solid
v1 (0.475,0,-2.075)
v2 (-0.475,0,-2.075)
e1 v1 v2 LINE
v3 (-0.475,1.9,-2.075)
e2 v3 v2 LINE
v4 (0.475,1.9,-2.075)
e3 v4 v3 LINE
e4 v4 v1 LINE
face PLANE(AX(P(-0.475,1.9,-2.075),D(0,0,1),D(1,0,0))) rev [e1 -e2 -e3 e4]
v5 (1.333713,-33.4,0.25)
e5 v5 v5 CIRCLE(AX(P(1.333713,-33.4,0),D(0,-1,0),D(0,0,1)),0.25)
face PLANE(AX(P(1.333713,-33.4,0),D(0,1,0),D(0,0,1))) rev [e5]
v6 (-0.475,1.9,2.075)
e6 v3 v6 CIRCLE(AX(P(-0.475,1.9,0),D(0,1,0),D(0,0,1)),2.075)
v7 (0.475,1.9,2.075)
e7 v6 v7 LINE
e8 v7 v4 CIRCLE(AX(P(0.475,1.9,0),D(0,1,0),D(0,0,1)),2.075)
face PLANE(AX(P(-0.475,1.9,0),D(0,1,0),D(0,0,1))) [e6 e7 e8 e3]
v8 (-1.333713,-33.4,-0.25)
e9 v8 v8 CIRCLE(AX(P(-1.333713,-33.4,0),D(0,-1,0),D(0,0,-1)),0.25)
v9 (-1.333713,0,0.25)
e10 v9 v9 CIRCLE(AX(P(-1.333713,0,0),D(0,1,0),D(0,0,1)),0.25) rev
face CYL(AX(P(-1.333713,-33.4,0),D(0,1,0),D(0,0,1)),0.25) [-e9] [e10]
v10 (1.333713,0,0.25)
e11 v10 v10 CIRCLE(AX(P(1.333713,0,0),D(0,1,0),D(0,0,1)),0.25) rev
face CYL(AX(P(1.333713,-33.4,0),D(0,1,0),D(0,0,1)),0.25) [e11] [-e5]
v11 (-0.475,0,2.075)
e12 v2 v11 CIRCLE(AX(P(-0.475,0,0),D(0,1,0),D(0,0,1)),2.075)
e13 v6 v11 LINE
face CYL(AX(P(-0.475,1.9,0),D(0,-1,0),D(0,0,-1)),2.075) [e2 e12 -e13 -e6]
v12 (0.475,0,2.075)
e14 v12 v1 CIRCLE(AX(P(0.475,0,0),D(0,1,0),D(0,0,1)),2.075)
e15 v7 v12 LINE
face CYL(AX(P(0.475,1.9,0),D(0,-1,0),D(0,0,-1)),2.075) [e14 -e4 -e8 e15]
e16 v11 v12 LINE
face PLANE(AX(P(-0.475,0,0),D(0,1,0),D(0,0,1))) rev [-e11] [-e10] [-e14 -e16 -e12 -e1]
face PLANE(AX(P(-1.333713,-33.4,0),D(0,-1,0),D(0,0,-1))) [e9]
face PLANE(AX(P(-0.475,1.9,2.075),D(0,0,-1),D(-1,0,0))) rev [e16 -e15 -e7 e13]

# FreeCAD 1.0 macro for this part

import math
import FreeCAD as App
import Part
import Sketcher

V = App.Vector
Q = App.Units.Quantity

doc = App.newDocument("Part")
body = doc.addObject("PartDesign::Body", "Body")

sketch1 = body.newObject("Sketcher::SketchObject", "Sketch")
sketch1.AttachmentSupport = (doc.getObject("XZ_Plane"), [""])
sketch1.MapMode = "FlatFace"
sketch1.addGeometry([
    Part.LineSegment(V(0.5, -2.1, 0), V(-0.5, -2.1, 0)),
    Part.ArcOfCircle(Part.Circle(V(-0.5, 0, 0), V(0, 0, 1), 2.1), math.radians(90), math.radians(270)),
    Part.LineSegment(V(-0.5, 2.1, 0), V(0.5, 2.1, 0)),
    Part.ArcOfCircle(Part.Circle(V(0.5, 0, 0), V(0, 0, 1), 2.1), math.radians(-90), math.radians(90)),
], False)
sketch1.addConstraint([
    Sketcher.Constraint("Tangent", 0, 2, 1, 2),
    Sketcher.Constraint("Tangent", 1, 1, 2, 1),
    Sketcher.Constraint("Tangent", 2, 2, 3, 2),
    Sketcher.Constraint("Tangent", 3, 1, 0, 1),
    Sketcher.Constraint("Horizontal", 0),
    Sketcher.Constraint("Horizontal", 2),
    Sketcher.Constraint("Symmetric", 1, 3, 3, 3, -1, 1),
    Sketcher.Constraint("Radius", 1, Q("2.075 mm")),
    Sketcher.Constraint("DistanceX", 0, 2, 0, 1, Q("0.95 mm")),
])
pad1 = body.newObject("PartDesign::Pad", "Pad")
pad1.Profile = sketch1
pad1.Length = 1.9
pad1.Reversed = True

sketch2 = body.newObject("Sketcher::SketchObject", "Sketch001")
sketch2.AttachmentSupport = (doc.getObject("XZ_Plane"), [""])
sketch2.MapMode = "FlatFace"
sketch2.addGeometry([
    Part.Circle(V(-1.33, 0, 0), V(0, 0, 1), 0.25),
    Part.Circle(V(1.33, 0, 0), V(0, 0, 1), 0.25),
], False)
sketch2.addConstraint([
    Sketcher.Constraint("Equal", 0, 1),
    Sketcher.Constraint("Symmetric", 0, 3, 1, 3, -1, 1),
    Sketcher.Constraint("PointOnObject", 0, 3, -1),
    Sketcher.Constraint("Diameter", 0, Q("0.5 mm")),
    Sketcher.Constraint("DistanceX", 0, 3, -1, 1, Q("1.333713 mm")),
])
pad2 = body.newObject("PartDesign::Pad", "Pad001")
pad2.Profile = sketch2
pad2.Length = 33.4

doc.recompute()
